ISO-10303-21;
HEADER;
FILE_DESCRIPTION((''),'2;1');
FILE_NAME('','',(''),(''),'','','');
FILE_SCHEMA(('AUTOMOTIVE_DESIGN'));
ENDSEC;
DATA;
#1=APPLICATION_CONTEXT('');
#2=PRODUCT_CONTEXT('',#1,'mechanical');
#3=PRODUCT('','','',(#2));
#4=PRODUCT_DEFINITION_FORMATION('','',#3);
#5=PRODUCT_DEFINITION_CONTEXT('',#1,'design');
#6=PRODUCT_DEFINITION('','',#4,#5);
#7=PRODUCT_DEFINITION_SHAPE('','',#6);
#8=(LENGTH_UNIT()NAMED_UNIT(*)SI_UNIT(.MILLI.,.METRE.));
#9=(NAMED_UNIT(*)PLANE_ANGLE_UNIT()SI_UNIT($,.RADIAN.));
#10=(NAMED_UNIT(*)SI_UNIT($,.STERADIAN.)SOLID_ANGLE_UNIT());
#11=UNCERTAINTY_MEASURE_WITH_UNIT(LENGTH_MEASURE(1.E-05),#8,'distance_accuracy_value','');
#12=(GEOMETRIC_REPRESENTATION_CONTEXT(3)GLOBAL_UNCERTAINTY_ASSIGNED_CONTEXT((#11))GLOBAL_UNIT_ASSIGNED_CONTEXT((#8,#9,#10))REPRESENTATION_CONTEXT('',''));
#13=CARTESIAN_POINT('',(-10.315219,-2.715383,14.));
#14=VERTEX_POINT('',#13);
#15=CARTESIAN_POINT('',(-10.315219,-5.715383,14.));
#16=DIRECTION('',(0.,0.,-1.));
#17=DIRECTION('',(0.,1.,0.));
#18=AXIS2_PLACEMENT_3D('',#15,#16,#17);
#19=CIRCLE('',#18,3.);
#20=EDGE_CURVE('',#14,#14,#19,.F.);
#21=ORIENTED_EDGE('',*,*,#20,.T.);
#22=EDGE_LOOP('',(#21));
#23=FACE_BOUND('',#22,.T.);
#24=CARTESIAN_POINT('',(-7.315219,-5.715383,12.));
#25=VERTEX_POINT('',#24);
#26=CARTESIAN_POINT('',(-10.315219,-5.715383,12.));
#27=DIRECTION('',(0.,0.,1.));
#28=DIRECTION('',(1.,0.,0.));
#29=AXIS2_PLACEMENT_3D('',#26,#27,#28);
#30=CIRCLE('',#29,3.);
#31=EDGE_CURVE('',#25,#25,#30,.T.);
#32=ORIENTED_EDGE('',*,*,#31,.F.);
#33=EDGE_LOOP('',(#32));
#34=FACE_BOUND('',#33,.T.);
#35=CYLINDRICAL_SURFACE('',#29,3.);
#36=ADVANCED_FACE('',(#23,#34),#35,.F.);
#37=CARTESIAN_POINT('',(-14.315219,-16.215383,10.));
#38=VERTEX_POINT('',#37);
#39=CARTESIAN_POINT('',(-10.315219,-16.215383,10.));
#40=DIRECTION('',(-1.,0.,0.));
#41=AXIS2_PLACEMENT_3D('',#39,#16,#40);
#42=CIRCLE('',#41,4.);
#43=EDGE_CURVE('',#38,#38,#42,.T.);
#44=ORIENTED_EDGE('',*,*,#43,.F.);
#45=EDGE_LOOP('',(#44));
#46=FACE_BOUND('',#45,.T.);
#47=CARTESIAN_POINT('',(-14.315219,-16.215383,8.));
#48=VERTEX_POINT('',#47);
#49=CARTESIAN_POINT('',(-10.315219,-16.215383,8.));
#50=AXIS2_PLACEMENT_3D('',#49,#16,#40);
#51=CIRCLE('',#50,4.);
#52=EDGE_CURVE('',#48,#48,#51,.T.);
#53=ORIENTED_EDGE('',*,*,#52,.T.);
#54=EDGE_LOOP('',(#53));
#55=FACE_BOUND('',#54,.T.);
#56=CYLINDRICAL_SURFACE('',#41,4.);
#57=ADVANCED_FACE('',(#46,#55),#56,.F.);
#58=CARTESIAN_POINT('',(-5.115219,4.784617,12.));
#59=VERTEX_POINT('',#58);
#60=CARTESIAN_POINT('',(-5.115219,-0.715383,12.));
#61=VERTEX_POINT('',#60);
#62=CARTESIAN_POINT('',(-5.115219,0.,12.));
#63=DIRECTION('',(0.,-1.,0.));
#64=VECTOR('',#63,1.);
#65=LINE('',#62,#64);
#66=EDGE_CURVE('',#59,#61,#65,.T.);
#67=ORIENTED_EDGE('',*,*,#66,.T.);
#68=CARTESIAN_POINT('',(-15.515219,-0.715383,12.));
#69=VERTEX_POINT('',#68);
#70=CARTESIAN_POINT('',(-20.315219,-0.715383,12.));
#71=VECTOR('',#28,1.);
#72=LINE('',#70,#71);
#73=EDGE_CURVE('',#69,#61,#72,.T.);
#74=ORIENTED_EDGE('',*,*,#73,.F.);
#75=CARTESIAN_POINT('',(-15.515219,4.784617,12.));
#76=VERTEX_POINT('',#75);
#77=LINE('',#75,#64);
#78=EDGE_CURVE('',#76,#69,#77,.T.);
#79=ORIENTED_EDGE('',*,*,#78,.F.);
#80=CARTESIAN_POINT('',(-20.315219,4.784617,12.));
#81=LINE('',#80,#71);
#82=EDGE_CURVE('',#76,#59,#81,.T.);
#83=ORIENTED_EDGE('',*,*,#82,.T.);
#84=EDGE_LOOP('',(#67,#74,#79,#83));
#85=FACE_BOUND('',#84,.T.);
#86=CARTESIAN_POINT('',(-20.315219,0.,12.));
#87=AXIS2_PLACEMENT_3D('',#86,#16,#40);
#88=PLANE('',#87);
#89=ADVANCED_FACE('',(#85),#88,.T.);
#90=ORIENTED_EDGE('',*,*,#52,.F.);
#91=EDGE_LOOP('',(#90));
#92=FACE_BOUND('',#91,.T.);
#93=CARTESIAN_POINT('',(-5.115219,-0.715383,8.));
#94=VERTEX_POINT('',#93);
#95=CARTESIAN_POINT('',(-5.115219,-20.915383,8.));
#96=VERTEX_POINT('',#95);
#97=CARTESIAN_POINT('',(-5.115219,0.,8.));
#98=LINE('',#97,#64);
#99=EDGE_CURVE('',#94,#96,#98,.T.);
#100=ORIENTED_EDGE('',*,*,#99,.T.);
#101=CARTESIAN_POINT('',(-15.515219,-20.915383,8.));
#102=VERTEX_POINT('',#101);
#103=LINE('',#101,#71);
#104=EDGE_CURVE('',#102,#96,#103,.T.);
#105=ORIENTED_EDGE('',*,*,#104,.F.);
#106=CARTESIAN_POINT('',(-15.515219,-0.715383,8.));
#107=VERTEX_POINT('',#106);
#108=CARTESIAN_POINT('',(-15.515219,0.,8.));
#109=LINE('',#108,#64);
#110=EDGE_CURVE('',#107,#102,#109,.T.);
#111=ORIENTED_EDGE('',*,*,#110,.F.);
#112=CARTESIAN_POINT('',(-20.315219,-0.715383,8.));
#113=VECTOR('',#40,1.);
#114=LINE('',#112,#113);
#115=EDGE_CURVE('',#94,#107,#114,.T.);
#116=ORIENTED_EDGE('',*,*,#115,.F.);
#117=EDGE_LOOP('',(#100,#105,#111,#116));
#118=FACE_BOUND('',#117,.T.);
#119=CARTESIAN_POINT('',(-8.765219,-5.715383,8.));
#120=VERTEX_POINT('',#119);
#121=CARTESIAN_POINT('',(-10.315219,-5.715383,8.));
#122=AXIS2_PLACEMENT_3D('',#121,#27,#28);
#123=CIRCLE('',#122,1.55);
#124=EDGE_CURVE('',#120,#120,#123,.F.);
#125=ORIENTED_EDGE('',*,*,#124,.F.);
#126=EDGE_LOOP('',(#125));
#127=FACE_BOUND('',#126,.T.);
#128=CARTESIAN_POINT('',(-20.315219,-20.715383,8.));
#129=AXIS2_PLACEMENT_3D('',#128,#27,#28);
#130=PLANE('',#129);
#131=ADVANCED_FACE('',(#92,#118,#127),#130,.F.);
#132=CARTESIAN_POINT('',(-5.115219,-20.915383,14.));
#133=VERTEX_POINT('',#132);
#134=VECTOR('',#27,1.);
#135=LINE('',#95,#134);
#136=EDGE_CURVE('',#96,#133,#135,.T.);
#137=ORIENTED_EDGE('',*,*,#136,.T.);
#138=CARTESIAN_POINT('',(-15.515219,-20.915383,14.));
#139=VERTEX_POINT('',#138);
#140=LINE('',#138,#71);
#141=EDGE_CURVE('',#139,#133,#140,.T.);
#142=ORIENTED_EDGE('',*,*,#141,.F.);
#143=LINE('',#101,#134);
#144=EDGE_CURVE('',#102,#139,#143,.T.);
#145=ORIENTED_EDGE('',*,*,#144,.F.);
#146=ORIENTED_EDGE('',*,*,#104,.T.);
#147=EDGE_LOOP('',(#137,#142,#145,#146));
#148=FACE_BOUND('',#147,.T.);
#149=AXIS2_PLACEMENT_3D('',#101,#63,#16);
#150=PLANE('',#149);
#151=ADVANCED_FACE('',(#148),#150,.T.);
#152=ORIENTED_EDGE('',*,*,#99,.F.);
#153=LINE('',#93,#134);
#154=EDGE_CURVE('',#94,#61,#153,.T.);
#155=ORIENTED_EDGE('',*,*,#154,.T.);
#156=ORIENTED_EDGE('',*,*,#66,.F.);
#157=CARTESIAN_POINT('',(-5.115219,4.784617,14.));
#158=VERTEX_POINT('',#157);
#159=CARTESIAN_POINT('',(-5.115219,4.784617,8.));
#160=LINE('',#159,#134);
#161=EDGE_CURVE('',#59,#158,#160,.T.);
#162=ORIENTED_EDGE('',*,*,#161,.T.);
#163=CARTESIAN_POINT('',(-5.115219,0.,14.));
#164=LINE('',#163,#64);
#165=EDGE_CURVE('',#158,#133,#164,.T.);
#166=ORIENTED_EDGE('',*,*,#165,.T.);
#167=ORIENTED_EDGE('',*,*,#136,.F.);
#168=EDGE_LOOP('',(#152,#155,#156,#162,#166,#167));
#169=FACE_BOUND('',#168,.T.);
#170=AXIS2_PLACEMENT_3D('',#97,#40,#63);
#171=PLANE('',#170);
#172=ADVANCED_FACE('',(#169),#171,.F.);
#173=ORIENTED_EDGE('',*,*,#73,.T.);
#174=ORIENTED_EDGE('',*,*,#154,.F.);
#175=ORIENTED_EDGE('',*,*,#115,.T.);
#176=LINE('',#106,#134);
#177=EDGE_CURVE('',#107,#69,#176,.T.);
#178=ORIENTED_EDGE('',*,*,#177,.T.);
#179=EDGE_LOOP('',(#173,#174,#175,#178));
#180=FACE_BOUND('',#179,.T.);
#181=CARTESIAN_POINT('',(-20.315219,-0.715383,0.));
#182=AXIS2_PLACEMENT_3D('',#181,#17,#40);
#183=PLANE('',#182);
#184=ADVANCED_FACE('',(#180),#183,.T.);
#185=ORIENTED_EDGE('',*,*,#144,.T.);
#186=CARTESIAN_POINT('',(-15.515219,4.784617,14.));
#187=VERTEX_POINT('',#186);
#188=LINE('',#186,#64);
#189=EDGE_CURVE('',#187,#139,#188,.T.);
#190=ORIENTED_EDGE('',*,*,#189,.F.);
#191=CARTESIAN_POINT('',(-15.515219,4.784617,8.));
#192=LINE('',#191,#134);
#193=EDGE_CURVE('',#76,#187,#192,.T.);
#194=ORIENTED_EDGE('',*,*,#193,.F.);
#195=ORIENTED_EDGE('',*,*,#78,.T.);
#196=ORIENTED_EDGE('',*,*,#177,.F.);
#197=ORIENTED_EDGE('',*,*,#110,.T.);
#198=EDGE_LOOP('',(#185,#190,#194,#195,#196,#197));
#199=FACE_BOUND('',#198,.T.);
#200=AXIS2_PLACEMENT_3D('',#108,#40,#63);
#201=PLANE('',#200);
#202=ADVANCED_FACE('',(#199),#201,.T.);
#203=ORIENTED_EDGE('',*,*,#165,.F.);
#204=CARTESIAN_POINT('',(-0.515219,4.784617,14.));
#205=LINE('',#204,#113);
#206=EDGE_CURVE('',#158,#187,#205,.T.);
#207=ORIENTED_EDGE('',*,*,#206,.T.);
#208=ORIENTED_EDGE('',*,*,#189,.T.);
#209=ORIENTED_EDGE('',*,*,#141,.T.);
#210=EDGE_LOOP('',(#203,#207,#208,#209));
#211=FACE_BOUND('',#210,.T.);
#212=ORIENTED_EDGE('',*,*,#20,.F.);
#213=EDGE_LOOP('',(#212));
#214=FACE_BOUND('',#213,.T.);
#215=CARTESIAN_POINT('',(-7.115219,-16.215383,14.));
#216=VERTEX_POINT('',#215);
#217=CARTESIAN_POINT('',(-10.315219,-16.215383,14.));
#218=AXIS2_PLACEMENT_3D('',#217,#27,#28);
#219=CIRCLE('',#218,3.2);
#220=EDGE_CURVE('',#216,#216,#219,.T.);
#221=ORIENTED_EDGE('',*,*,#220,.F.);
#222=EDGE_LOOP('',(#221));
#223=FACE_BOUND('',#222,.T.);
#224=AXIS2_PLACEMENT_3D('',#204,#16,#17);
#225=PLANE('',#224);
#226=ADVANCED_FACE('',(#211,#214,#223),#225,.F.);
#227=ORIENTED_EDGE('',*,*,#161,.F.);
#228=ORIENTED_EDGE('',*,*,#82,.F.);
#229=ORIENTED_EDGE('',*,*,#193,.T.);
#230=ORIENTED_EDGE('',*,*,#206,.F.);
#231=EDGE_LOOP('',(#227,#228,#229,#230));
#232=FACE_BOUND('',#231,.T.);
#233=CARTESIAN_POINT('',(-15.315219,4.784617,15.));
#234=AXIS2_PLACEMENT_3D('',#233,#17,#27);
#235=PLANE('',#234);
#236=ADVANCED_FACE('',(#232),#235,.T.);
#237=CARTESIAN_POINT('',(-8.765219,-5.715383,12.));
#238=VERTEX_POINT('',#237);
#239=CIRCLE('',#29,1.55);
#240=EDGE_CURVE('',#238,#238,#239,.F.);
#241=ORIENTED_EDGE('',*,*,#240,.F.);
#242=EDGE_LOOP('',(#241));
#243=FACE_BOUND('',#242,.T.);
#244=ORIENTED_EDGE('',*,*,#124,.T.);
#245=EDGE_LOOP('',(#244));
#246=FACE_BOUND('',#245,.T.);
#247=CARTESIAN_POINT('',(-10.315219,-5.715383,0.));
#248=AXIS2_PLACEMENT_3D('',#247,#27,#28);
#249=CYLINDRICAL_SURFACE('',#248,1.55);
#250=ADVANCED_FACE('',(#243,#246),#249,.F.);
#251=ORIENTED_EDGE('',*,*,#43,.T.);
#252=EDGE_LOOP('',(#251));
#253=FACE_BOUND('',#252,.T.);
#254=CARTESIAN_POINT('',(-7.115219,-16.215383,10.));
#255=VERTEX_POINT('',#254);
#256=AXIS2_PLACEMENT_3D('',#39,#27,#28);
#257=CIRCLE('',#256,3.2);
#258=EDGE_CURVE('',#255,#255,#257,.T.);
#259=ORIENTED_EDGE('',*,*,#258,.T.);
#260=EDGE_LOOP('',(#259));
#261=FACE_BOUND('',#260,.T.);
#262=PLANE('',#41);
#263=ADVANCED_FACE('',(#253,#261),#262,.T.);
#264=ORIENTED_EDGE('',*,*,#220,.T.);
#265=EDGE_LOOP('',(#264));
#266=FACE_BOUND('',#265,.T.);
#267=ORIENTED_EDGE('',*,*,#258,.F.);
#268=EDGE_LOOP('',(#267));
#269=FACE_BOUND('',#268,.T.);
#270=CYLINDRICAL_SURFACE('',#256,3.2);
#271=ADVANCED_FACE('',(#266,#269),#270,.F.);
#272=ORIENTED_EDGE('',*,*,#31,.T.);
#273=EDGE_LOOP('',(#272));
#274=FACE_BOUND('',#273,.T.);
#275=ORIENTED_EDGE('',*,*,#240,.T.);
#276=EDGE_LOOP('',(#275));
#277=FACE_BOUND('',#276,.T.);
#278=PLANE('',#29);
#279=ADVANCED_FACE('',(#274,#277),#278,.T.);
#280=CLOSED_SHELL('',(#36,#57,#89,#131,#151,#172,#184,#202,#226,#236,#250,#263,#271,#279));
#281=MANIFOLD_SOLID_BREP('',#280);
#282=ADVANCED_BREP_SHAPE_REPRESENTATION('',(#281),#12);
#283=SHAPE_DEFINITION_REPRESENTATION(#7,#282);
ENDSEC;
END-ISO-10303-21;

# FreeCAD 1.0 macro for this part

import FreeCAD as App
import Part
import Sketcher
Q = App.Units.Quantity


def add_polygon(sketch, points):
    """Adds a closed chain of lines whose ends are joined by coincident constraints."""
    first, n = sketch.GeometryCount, len(points)
    for a, b in zip(points, points[1:] + points[:1]):
        sketch.addGeometry(Part.LineSegment(App.Vector(*a, 0), App.Vector(*b, 0)), False)
    for i in range(n):
        sketch.addConstraint(Sketcher.Constraint("Coincident", first + i, 2, first + (i + 1) % n, 1))

doc = App.newDocument("Part")
body = doc.addObject("PartDesign::Body", "Body")

sketch1 = body.newObject("Sketcher::SketchObject", "Sketch")
sketch1.AttachmentSupport = (doc.getObject("XY_Plane"), [""])
sketch1.MapMode = "FlatFace"
add_polygon(sketch1, [(-15, 5), (-15, -21), (-5, -21), (-5, 5)])
sketch1.addConstraint([
    Sketcher.Constraint("Vertical", 0),
    Sketcher.Constraint("Horizontal", 1),
    Sketcher.Constraint("Vertical", 2),
    Sketcher.Constraint("Horizontal", 3),
    Sketcher.Constraint("DistanceX", 1, 1, 1, 2, Q("10 mm")),
    Sketcher.Constraint("DistanceY", 0, 2, 0, 1, Q("25.5 mm")),
    Sketcher.Constraint("DistanceX", 0, 2, -1, 1, Q("15.315219 mm")),
    Sketcher.Constraint("DistanceY", 0, 2, -1, 1, Q("20.715383 mm")),
])
pad1 = body.newObject("PartDesign::Pad", "Pad")
pad1.Profile = sketch1
pad1.Length = 15

sketch2 = body.newObject("Sketcher::SketchObject", "Sketch001")
sketch2.AttachmentSupport = (doc.getObject("XY_Plane"), [""])
sketch2.MapMode = "FlatFace"
sketch2.AttachmentOffset = App.Placement(App.Vector(0, 0, 15), App.Rotation())
sketch2.addGeometry(Part.Circle(App.Vector(-10.3, -5.7, 0), App.Vector(0, 0, 1), 1.6), False)
sketch2.addConstraint([
    Sketcher.Constraint("Diameter", 0, Q("3.1 mm")),
    Sketcher.Constraint("DistanceX", 0, 3, -1, 1, Q("10.315219 mm")),
    Sketcher.Constraint("DistanceY", 0, 3, -1, 1, Q("5.715383 mm")),
])
pocket1 = body.newObject("PartDesign::Pocket", "Pocket")
pocket1.Profile = sketch2
pocket1.Length = 15

sketch3 = body.newObject("Sketcher::SketchObject", "Sketch002")
sketch3.AttachmentSupport = (doc.getObject("XY_Plane"), [""])
sketch3.MapMode = "FlatFace"
sketch3.AttachmentOffset = App.Placement(App.Vector(0, 0, 15), App.Rotation())
sketch3.addGeometry(Part.Circle(App.Vector(-10.3, -5.7, 0), App.Vector(0, 0, 1), 3), False)
sketch3.addConstraint([
    Sketcher.Constraint("Diameter", 0, Q("6 mm")),
    Sketcher.Constraint("DistanceX", 0, 3, -1, 1, Q("10.315219 mm")),
    Sketcher.Constraint("DistanceY", 0, 3, -1, 1, Q("5.715383 mm")),
])
pocket2 = body.newObject("PartDesign::Pocket", "Pocket001")
pocket2.Profile = sketch3
pocket2.Length = 3

sketch4 = body.newObject("Sketcher::SketchObject", "Sketch003")
sketch4.AttachmentSupport = (doc.getObject("XY_Plane"), [""])
sketch4.MapMode = "FlatFace"
sketch4.AttachmentOffset = App.Placement(App.Vector(0, 0, 15), App.Rotation())
sketch4.addGeometry(Part.Circle(App.Vector(-10.3, -16.2, 0), App.Vector(0, 0, 1), 3.5), False)
sketch4.addConstraint([
    Sketcher.Constraint("Diameter", 0, Q("7 mm")),
    Sketcher.Constraint("DistanceX", 0, 3, -1, 1, Q("10.315219 mm")),
    Sketcher.Constraint("DistanceY", 0, 3, -1, 1, Q("16.215383 mm")),
])
pocket3 = body.newObject("PartDesign::Pocket", "Pocket002")
pocket3.Profile = sketch4
pocket3.Length = 15

sketch5 = body.newObject("Sketcher::SketchObject", "Sketch004")
sketch5.AttachmentSupport = (doc.getObject("YZ_Plane"), [""])
sketch5.MapMode = "FlatFace"
sketch5.AttachmentOffset = App.Placement(App.Vector(0, 0, -5.315219), App.Rotation())
add_polygon(sketch5, [(5, 8), (-21, 8), (-21, 0), (5, 0)])
sketch5.addConstraint([
    Sketcher.Constraint("Horizontal", 0),
    Sketcher.Constraint("Vertical", 1),
    Sketcher.Constraint("Horizontal", 2),
    Sketcher.Constraint("Vertical", 3),
    Sketcher.Constraint("PointOnObject", 1, 2, -1),
    Sketcher.Constraint("DistanceY", 1, 2, 1, 1, Q("8 mm")),
    Sketcher.Constraint("DistanceX", 0, 2, 0, 1, Q("25.5 mm")),
    Sketcher.Constraint("DistanceX", 0, 2, -1, 1, Q("20.715383 mm")),
])
pocket4 = body.newObject("PartDesign::Pocket", "Pocket003")
pocket4.Profile = sketch5
pocket4.Length = 15

sketch6 = body.newObject("Sketcher::SketchObject", "Sketch005")
sketch6.AttachmentSupport = (doc.getObject("XY_Plane"), [""])
sketch6.MapMode = "FlatFace"
sketch6.AttachmentOffset = App.Placement(App.Vector(0, 0, 8), App.Rotation())
sketch6.addGeometry(Part.Circle(App.Vector(-10.3, -16.2, 0), App.Vector(0, 0, 1), 4), False)
sketch6.addConstraint([
    Sketcher.Constraint("Diameter", 0, Q("8 mm")),
    Sketcher.Constraint("DistanceX", 0, 3, -1, 1, Q("10.315219 mm")),
    Sketcher.Constraint("DistanceY", 0, 3, -1, 1, Q("16.215383 mm")),
])
pocket5 = body.newObject("PartDesign::Pocket", "Pocket004")
pocket5.Profile = sketch6
pocket5.Length = 2
pocket5.Reversed = True

sketch7 = body.newObject("Sketcher::SketchObject", "Sketch006")
sketch7.AttachmentSupport = (doc.getObject("YZ_Plane"), [""])
sketch7.MapMode = "FlatFace"
sketch7.AttachmentOffset = App.Placement(App.Vector(0, 0, -5.315219), App.Rotation())
add_polygon(sketch7, [(4.8, 12), (-0.7, 12), (-0.7, 8), (4.8, 8)])
sketch7.addConstraint([
    Sketcher.Constraint("Horizontal", 0),
    Sketcher.Constraint("Vertical", 1),
    Sketcher.Constraint("Horizontal", 2),
    Sketcher.Constraint("Vertical", 3),
    Sketcher.Constraint("DistanceY", 1, 2, 1, 1, Q("4 mm")),
    Sketcher.Constraint("DistanceX", 0, 2, 0, 1, Q("5.5 mm")),
    Sketcher.Constraint("DistanceY", -1, 1, 0, 2, Q("12 mm")),
    Sketcher.Constraint("DistanceX", 0, 2, -1, 1, Q("0.715383 mm")),
])
pocket6 = body.newObject("PartDesign::Pocket", "Pocket005")
pocket6.Profile = sketch7
pocket6.Length = 15

sketch8 = body.newObject("Sketcher::SketchObject", "Sketch007")
sketch8.AttachmentSupport = (doc.getObject("XY_Plane"), [""])
sketch8.MapMode = "FlatFace"
sketch8.AttachmentOffset = App.Placement(App.Vector(0, 0, 15), App.Rotation())
add_polygon(sketch8, [(-15.52, 4.78), (-15.52, -20.92), (-5.12, -20.92), (-5.12, 4.78), (-5.32, 4.78), (-5.32, -20.72), (-15.32, -20.72), (-15.32, 4.78)])
sketch8.addConstraint([
    Sketcher.Constraint("Vertical", 0),
    Sketcher.Constraint("Horizontal", 1),
    Sketcher.Constraint("Vertical", 2),
    Sketcher.Constraint("Horizontal", 3),
    Sketcher.Constraint("Vertical", 4),
    Sketcher.Constraint("Horizontal", 5),
    Sketcher.Constraint("Vertical", 6),
    Sketcher.Constraint("Horizontal", 7),
    Sketcher.Constraint("Horizontal", 3, 2, 6, 2),
    Sketcher.Constraint("Equal", 3, 7),
    Sketcher.Constraint("DistanceX", 5, 2, 5, 1, Q("10 mm")),
    Sketcher.Constraint("DistanceX", 1, 1, 1, 2, Q("10.4 mm")),
    Sketcher.Constraint("DistanceY", 0, 2, 0, 1, Q("25.7 mm")),
    Sketcher.Constraint("DistanceY", 4, 2, 4, 1, Q("25.5 mm")),
    Sketcher.Constraint("DistanceX", 0, 2, -1, 1, Q("15.515219 mm")),
    Sketcher.Constraint("DistanceY", 0, 2, -1, 1, Q("20.915383 mm")),
])
pad2 = body.newObject("PartDesign::Pad", "Pad001")
pad2.Profile = sketch8
pad2.Length = 7
pad2.Reversed = True

sketch9 = body.newObject("Sketcher::SketchObject", "Sketch008")
sketch9.AttachmentSupport = (doc.getObject("YZ_Plane"), [""])
sketch9.MapMode = "FlatFace"
sketch9.AttachmentOffset = App.Placement(App.Vector(0, 0, -15.515219), App.Rotation())
add_polygon(sketch9, [(4.8, 8), (-0.7, 8), (-0.7, 12), (4.8, 12)])
sketch9.addConstraint([
    Sketcher.Constraint("Horizontal", 0),
    Sketcher.Constraint("Vertical", 1),
    Sketcher.Constraint("Horizontal", 2),
    Sketcher.Constraint("Vertical", 3),
    Sketcher.Constraint("DistanceY", 1, 1, 1, 2, Q("4 mm")),
    Sketcher.Constraint("DistanceX", 0, 2, 0, 1, Q("5.5 mm")),
    Sketcher.Constraint("DistanceY", -1, 1, 0, 2, Q("8 mm")),
    Sketcher.Constraint("DistanceX", 0, 2, -1, 1, Q("0.715383 mm")),
])
pocket7 = body.newObject("PartDesign::Pocket", "Pocket006")
pocket7.Profile = sketch9
pocket7.Length = 20
pocket7.Reversed = True

sketch10 = body.newObject("Sketcher::SketchObject", "Sketch009")
sketch10.AttachmentSupport = (doc.getObject("YZ_Plane"), [""])
sketch10.MapMode = "FlatFace"
sketch10.AttachmentOffset = App.Placement(App.Vector(0, 0, -15.515219), App.Rotation())
add_polygon(sketch10, [(4.8, 14), (-20.9, 14), (-20.9, 15), (4.8, 15)])
sketch10.addConstraint([
    Sketcher.Constraint("Horizontal", 0),
    Sketcher.Constraint("Vertical", 1),
    Sketcher.Constraint("Horizontal", 2),
    Sketcher.Constraint("Vertical", 3),
    Sketcher.Constraint("DistanceY", 1, 1, 1, 2, Q("1 mm")),
    Sketcher.Constraint("DistanceX", 0, 2, 0, 1, Q("25.7 mm")),
    Sketcher.Constraint("DistanceY", -1, 1, 0, 2, Q("14 mm")),
    Sketcher.Constraint("DistanceX", 0, 2, -1, 1, Q("20.915383 mm")),
])
pocket8 = body.newObject("PartDesign::Pocket", "Pocket007")
pocket8.Profile = sketch10
pocket8.Length = 15
pocket8.Reversed = True

sketch11 = body.newObject("Sketcher::SketchObject", "Sketch010")
sketch11.AttachmentSupport = (doc.getObject("XY_Plane"), [""])
sketch11.MapMode = "FlatFace"
sketch11.AttachmentOffset = App.Placement(App.Vector(0, 0, 14), App.Rotation())
sketch11.addGeometry([
    Part.Circle(App.Vector(-10.3, -16.2, 0), App.Vector(0, 0, 1), 3.5),
    Part.Circle(App.Vector(-10.3, -16.2, 0), App.Vector(0, 0, 1), 3.2),
], False)
sketch11.addConstraint([
    Sketcher.Constraint("Coincident", 1, 3, 0, 3),
    Sketcher.Constraint("Diameter", 0, Q("7 mm")),
    Sketcher.Constraint("Diameter", 1, Q("6.4 mm")),
    Sketcher.Constraint("DistanceX", 0, 3, -1, 1, Q("10.315219 mm")),
    Sketcher.Constraint("DistanceY", 0, 3, -1, 1, Q("16.215383 mm")),
])
pad3 = body.newObject("PartDesign::Pad", "Pad002")
pad3.Profile = sketch11
pad3.Length = 4
pad3.Reversed = True

doc.recompute()
